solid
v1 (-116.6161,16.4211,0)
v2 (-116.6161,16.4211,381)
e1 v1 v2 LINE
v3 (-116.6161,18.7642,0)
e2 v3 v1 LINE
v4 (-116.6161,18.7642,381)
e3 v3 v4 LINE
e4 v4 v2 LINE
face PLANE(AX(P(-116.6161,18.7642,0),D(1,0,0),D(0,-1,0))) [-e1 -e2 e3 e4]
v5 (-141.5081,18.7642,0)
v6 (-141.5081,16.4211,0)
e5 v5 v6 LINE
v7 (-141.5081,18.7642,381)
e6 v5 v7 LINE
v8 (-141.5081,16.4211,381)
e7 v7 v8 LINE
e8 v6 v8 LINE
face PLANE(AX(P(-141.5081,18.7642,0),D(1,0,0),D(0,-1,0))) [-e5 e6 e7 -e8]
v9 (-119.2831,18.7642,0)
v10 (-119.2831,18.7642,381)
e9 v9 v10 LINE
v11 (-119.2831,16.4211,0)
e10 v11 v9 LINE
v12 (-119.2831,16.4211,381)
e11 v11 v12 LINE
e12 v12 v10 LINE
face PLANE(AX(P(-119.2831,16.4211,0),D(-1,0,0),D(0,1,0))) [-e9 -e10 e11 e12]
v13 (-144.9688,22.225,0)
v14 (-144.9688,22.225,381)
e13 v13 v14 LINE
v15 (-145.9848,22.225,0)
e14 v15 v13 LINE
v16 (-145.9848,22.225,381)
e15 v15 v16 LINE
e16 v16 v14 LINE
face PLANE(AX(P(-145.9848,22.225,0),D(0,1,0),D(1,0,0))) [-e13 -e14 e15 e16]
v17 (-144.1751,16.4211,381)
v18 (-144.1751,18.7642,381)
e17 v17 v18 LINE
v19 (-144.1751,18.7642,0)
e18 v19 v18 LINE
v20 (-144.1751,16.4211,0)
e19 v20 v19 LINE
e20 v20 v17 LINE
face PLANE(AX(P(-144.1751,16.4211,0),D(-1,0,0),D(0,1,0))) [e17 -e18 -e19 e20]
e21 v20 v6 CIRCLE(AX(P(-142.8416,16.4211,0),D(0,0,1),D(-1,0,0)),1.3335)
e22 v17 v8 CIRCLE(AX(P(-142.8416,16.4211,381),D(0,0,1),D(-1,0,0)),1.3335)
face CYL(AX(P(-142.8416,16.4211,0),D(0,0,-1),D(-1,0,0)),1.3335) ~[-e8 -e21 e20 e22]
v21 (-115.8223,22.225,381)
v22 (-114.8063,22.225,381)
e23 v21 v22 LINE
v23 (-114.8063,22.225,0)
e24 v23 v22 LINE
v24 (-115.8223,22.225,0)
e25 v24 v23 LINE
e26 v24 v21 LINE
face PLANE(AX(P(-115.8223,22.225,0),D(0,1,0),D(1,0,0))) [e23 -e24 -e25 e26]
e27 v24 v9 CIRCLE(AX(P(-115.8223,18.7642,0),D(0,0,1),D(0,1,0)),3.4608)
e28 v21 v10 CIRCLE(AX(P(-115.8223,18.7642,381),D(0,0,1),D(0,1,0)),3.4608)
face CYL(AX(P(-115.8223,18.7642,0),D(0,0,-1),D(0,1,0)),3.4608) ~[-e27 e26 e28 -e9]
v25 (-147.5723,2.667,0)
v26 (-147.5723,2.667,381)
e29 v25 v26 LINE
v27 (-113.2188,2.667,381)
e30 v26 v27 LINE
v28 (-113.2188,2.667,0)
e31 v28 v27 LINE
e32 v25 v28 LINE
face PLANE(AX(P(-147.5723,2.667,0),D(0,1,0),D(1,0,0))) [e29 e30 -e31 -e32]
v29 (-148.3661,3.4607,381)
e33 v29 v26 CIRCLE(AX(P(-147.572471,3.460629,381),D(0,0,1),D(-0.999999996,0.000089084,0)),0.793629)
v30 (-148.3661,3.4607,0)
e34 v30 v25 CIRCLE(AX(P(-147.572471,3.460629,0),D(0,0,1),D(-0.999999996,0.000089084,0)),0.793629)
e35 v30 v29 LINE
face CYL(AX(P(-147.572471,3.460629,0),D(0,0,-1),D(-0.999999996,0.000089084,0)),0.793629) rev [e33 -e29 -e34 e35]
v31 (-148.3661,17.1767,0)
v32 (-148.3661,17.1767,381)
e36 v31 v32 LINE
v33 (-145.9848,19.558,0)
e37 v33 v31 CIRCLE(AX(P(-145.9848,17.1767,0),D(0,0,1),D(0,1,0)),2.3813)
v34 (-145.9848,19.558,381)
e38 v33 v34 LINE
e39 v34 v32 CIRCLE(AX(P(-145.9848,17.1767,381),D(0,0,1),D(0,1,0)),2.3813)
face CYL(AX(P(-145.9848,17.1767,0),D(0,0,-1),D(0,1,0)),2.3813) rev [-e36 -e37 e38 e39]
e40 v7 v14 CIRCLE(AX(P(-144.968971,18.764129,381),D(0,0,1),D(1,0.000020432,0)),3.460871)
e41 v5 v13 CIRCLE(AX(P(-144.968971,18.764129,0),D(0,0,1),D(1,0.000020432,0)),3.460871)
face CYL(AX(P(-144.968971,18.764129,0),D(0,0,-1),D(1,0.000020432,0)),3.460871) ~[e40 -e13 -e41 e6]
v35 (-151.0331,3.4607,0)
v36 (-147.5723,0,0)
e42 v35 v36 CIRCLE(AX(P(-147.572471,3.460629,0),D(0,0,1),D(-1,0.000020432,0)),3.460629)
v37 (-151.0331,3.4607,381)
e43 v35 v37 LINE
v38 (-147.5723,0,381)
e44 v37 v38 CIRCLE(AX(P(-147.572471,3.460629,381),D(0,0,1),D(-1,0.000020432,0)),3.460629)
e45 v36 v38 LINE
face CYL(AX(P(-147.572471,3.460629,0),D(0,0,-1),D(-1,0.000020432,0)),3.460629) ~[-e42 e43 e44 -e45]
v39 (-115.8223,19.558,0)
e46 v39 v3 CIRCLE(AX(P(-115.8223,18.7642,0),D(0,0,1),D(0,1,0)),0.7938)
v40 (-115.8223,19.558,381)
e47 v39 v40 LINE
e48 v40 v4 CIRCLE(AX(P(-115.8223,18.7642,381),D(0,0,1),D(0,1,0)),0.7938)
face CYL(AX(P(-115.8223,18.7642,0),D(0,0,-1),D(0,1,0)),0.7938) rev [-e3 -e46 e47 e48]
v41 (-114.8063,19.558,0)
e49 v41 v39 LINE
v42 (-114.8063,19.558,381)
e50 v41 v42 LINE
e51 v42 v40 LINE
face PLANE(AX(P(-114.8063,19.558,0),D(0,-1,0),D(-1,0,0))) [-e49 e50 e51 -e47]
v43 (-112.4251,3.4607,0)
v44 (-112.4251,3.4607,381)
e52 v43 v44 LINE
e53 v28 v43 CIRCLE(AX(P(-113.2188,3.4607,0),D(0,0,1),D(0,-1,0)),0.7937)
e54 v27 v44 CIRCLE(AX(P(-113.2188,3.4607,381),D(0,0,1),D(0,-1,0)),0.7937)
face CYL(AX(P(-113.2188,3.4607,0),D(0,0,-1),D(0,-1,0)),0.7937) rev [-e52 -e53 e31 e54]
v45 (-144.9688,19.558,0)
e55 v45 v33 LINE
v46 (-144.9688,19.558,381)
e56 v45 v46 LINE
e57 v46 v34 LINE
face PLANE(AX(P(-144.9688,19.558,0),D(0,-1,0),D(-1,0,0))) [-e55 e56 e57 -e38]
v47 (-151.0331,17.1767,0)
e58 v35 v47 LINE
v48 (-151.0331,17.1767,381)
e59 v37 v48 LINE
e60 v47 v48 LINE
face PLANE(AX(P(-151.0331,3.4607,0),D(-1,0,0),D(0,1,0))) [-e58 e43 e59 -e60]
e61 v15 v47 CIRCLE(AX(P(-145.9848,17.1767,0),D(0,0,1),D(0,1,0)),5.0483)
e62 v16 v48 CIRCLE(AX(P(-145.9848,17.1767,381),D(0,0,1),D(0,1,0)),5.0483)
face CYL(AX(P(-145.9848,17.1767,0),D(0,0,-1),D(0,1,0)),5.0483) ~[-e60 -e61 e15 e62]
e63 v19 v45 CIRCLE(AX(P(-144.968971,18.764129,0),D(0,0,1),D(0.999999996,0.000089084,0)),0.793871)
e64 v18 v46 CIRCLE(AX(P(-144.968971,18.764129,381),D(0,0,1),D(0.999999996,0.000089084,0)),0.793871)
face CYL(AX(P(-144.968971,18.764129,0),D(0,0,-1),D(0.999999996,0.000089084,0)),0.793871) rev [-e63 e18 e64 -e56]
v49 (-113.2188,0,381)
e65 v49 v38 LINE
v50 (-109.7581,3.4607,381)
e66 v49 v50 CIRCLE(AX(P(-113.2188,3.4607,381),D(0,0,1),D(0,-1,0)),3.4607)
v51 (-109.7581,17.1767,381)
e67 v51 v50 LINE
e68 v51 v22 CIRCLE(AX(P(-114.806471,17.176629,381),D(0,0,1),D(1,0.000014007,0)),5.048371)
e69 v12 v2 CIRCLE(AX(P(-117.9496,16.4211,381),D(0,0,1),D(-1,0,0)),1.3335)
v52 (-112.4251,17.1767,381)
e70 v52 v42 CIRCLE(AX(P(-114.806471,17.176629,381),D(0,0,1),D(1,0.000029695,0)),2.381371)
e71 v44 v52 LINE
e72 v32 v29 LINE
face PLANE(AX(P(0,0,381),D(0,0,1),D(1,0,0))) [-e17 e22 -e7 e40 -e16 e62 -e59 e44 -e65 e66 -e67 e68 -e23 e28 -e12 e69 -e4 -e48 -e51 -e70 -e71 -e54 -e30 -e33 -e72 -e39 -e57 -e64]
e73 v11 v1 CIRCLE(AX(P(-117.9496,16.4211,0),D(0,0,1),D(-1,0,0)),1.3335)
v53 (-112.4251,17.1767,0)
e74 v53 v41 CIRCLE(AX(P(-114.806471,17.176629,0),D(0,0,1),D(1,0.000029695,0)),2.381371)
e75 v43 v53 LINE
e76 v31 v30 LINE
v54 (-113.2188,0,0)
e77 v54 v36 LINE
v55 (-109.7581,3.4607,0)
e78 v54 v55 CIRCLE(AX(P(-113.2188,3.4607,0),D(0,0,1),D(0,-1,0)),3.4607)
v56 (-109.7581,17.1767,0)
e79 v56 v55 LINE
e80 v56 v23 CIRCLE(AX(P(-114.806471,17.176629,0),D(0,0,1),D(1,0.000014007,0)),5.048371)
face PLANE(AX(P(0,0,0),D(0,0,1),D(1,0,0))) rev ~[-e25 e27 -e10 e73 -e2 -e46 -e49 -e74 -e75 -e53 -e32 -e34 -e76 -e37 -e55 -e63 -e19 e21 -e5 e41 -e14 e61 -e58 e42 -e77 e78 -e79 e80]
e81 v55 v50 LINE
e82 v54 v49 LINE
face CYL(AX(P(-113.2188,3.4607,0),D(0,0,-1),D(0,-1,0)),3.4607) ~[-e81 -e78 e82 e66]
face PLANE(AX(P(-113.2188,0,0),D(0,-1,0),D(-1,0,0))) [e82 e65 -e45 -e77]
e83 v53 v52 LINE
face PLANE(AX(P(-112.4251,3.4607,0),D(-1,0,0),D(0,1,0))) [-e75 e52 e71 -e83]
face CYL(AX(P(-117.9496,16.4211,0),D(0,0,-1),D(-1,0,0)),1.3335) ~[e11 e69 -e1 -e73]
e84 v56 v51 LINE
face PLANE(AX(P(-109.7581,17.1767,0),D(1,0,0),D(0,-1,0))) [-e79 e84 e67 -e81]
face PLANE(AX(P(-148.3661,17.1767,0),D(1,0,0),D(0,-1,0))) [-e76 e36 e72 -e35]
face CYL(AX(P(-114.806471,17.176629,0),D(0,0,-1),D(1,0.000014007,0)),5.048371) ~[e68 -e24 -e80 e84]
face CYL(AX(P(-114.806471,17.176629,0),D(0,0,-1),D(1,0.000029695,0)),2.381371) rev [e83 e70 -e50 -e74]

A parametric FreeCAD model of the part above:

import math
import FreeCAD as App
import Part
import Sketcher
Q = App.Units.Quantity

doc = App.newDocument("Part")
body = doc.addObject("PartDesign::Body", "Body")

# Sketch on XY plane
sketch1 = body.newObject("Sketcher::SketchObject", "Sketch")
sketch1.AttachmentSupport = (doc.getObject("XY_Plane"), [""])
sketch1.MapMode = "FlatFace"
sketch1.addGeometry([
    Part.LineSegment(App.Vector(-147.6, 0, 0), App.Vector(-113.2, 0, 0)),  # 0
    Part.ArcOfCircle(Part.Circle(App.Vector(-113.2, 3.5, 0), App.Vector(0, 0, 1), 3.5), math.radians(-90), math.radians(0)),  # 1
    Part.LineSegment(App.Vector(-109.8, 3.5, 0), App.Vector(-109.8, 17.2, 0)),  # 2
    Part.ArcOfCircle(Part.Circle(App.Vector(-114.8, 17.2, 0), App.Vector(0, 0, 1), 5), math.radians(0), math.radians(90)),  # 3
    Part.LineSegment(App.Vector(-114.8, 22.2, 0), App.Vector(-115.8, 22.2, 0)),  # 4
    Part.ArcOfCircle(Part.Circle(App.Vector(-115.8, 18.8, 0), App.Vector(0, 0, 1), 3.5), math.radians(90), math.radians(180)),  # 5
    Part.LineSegment(App.Vector(-119.3, 18.8, 0), App.Vector(-119.3, 16.4, 0)),  # 6
    Part.ArcOfCircle(Part.Circle(App.Vector(-117.9, 16.4, 0), App.Vector(0, 0, 1), 1.3), math.radians(180), math.radians(360)),  # 7
    Part.LineSegment(App.Vector(-116.6, 16.4, 0), App.Vector(-116.6, 18.8, 0)),  # 8
    Part.ArcOfCircle(Part.Circle(App.Vector(-115.8, 18.8, 0), App.Vector(0, 0, 1), 0.8), math.radians(90), math.radians(180)),  # 9
    Part.LineSegment(App.Vector(-115.8, 19.6, 0), App.Vector(-114.8, 19.6, 0)),  # 10
    Part.ArcOfCircle(Part.Circle(App.Vector(-114.8, 17.2, 0), App.Vector(0, 0, 1), 2.4), math.radians(0), math.radians(90)),  # 11
    Part.LineSegment(App.Vector(-112.4, 17.2, 0), App.Vector(-112.4, 3.5, 0)),  # 12
    Part.ArcOfCircle(Part.Circle(App.Vector(-113.2, 3.5, 0), App.Vector(0, 0, 1), 0.8), math.radians(-90), math.radians(0)),  # 13
    Part.LineSegment(App.Vector(-113.2, 2.7, 0), App.Vector(-147.6, 2.7, 0)),  # 14
    Part.ArcOfCircle(Part.Circle(App.Vector(-147.6, 3.5, 0), App.Vector(0, 0, 1), 0.8), math.radians(180), math.radians(270)),  # 15
    Part.LineSegment(App.Vector(-148.4, 3.5, 0), App.Vector(-148.4, 17.2, 0)),  # 16
    Part.ArcOfCircle(Part.Circle(App.Vector(-146, 17.2, 0), App.Vector(0, 0, 1), 2.4), math.radians(90), math.radians(180)),  # 17
    Part.LineSegment(App.Vector(-146, 19.6, 0), App.Vector(-145, 19.6, 0)),  # 18
    Part.ArcOfCircle(Part.Circle(App.Vector(-145, 18.8, 0), App.Vector(0, 0, 1), 0.8), math.radians(0), math.radians(90)),  # 19
    Part.LineSegment(App.Vector(-144.2, 18.8, 0), App.Vector(-144.2, 16.4, 0)),  # 20
    Part.ArcOfCircle(Part.Circle(App.Vector(-142.8, 16.4, 0), App.Vector(0, 0, 1), 1.3), math.radians(180), math.radians(360)),  # 21
    Part.LineSegment(App.Vector(-141.5, 16.4, 0), App.Vector(-141.5, 18.8, 0)),  # 22
    Part.ArcOfCircle(Part.Circle(App.Vector(-145, 18.8, 0), App.Vector(0, 0, 1), 3.5), math.radians(0), math.radians(90)),  # 23
    Part.LineSegment(App.Vector(-145, 22.2, 0), App.Vector(-146, 22.2, 0)),  # 24
    Part.ArcOfCircle(Part.Circle(App.Vector(-146, 17.2, 0), App.Vector(0, 0, 1), 5), math.radians(90), math.radians(180)),  # 25
    Part.LineSegment(App.Vector(-151, 17.2, 0), App.Vector(-151, 3.5, 0)),  # 26
    Part.ArcOfCircle(Part.Circle(App.Vector(-147.6, 3.5, 0), App.Vector(0, 0, 1), 3.5), math.radians(180), math.radians(270)),  # 27
], False)
sketch1.addConstraint([
    Sketcher.Constraint("Tangent", 0, 2, 1, 1),
    Sketcher.Constraint("Tangent", 1, 2, 2, 1),
    Sketcher.Constraint("Tangent", 2, 2, 3, 1),
    Sketcher.Constraint("Tangent", 3, 2, 4, 1),
    Sketcher.Constraint("Tangent", 4, 2, 5, 1),
    Sketcher.Constraint("Tangent", 5, 2, 6, 1),
    Sketcher.Constraint("Tangent", 6, 2, 7, 1),
    Sketcher.Constraint("Tangent", 7, 2, 8, 1),
    Sketcher.Constraint("Tangent", 8, 2, 9, 2),
    Sketcher.Constraint("Tangent", 9, 1, 10, 1),
    Sketcher.Constraint("Tangent", 10, 2, 11, 2),
    Sketcher.Constraint("Tangent", 11, 1, 12, 1),
    Sketcher.Constraint("Tangent", 12, 2, 13, 2),
    Sketcher.Constraint("Tangent", 13, 1, 14, 1),
    Sketcher.Constraint("Tangent", 14, 2, 15, 2),
    Sketcher.Constraint("Tangent", 15, 1, 16, 1),
    Sketcher.Constraint("Tangent", 16, 2, 17, 2),
    Sketcher.Constraint("Tangent", 17, 1, 18, 1),
    Sketcher.Constraint("Tangent", 18, 2, 19, 2),
    Sketcher.Constraint("Tangent", 19, 1, 20, 1),
    Sketcher.Constraint("Tangent", 20, 2, 21, 1),
    Sketcher.Constraint("Tangent", 21, 2, 22, 1),
    Sketcher.Constraint("Tangent", 22, 2, 23, 1),
    Sketcher.Constraint("Tangent", 23, 2, 24, 1),
    Sketcher.Constraint("Tangent", 24, 2, 25, 1),
    Sketcher.Constraint("Tangent", 25, 2, 26, 1),
    Sketcher.Constraint("Tangent", 26, 2, 27, 1),
    Sketcher.Constraint("Tangent", 27, 2, 0, 1),
    Sketcher.Constraint("Horizontal", 0),
    Sketcher.Constraint("Vertical", 2),
    Sketcher.Constraint("Horizontal", 4),
    Sketcher.Constraint("Vertical", 6),
    Sketcher.Constraint("Vertical", 8),
    Sketcher.Constraint("Horizontal", 10),
    Sketcher.Constraint("Vertical", 12),
    Sketcher.Constraint("Horizontal", 14),
    Sketcher.Constraint("Vertical", 16),
    Sketcher.Constraint("Horizontal", 18),
    Sketcher.Constraint("Vertical", 20),
    Sketcher.Constraint("Vertical", 22),
    Sketcher.Constraint("Horizontal", 24),
    Sketcher.Constraint("Vertical", 26),
    Sketcher.Constraint("Coincident", 9, 3, 5, 3),
    Sketcher.Constraint("Coincident", 11, 3, 3, 3),
    Sketcher.Constraint("Coincident", 13, 3, 1, 3),
    Sketcher.Constraint("Coincident", 23, 3, 19, 3),
    Sketcher.Constraint("Coincident", 25, 3, 17, 3),
    Sketcher.Constraint("Coincident", 27, 3, 15, 3),
    Sketcher.Constraint("Equal", 1, 5),
    Sketcher.Constraint("Equal", 13, 15),
    Sketcher.Constraint("Equal", 11, 17),
    Sketcher.Constraint("Equal", 15, 19),
    Sketcher.Constraint("PointOnObject", 0, 2, -1),
    Sketcher.Constraint("Horizontal", 11, 3, 17, 3),
    Sketcher.Constraint("Horizontal", 7, 3, 21, 3),
    Sketcher.Constraint("Equal", 10, 18),
    Sketcher.Constraint("Radius", 9, Q("0.031252 in")),
    Sketcher.Constraint("Radius", 11, Q("0.093748 in")),
    Sketcher.Constraint("DistanceX", 4, 2, 4, 1, Q("0.04 in")),
    Sketcher.Constraint("DistanceY", 2, 1, 2, 2, Q("0.54 in")),
    Sketcher.Constraint("Radius", 7, Q("0.0525 in")),
    Sketcher.Constraint("DistanceX", 15, 3, 5, 3, Q("1.25 in")),
    Sketcher.Constraint("DistanceY", 6, 2, 6, 1, 2.343),
    Sketcher.Constraint("DistanceX", 1, 3, -1, 1, 113.2188),
])
pad1 = body.newObject("PartDesign::Pad", "Pad")
pad1.Profile = sketch1
pad1.Length = Q("15 in")

doc.recompute()
